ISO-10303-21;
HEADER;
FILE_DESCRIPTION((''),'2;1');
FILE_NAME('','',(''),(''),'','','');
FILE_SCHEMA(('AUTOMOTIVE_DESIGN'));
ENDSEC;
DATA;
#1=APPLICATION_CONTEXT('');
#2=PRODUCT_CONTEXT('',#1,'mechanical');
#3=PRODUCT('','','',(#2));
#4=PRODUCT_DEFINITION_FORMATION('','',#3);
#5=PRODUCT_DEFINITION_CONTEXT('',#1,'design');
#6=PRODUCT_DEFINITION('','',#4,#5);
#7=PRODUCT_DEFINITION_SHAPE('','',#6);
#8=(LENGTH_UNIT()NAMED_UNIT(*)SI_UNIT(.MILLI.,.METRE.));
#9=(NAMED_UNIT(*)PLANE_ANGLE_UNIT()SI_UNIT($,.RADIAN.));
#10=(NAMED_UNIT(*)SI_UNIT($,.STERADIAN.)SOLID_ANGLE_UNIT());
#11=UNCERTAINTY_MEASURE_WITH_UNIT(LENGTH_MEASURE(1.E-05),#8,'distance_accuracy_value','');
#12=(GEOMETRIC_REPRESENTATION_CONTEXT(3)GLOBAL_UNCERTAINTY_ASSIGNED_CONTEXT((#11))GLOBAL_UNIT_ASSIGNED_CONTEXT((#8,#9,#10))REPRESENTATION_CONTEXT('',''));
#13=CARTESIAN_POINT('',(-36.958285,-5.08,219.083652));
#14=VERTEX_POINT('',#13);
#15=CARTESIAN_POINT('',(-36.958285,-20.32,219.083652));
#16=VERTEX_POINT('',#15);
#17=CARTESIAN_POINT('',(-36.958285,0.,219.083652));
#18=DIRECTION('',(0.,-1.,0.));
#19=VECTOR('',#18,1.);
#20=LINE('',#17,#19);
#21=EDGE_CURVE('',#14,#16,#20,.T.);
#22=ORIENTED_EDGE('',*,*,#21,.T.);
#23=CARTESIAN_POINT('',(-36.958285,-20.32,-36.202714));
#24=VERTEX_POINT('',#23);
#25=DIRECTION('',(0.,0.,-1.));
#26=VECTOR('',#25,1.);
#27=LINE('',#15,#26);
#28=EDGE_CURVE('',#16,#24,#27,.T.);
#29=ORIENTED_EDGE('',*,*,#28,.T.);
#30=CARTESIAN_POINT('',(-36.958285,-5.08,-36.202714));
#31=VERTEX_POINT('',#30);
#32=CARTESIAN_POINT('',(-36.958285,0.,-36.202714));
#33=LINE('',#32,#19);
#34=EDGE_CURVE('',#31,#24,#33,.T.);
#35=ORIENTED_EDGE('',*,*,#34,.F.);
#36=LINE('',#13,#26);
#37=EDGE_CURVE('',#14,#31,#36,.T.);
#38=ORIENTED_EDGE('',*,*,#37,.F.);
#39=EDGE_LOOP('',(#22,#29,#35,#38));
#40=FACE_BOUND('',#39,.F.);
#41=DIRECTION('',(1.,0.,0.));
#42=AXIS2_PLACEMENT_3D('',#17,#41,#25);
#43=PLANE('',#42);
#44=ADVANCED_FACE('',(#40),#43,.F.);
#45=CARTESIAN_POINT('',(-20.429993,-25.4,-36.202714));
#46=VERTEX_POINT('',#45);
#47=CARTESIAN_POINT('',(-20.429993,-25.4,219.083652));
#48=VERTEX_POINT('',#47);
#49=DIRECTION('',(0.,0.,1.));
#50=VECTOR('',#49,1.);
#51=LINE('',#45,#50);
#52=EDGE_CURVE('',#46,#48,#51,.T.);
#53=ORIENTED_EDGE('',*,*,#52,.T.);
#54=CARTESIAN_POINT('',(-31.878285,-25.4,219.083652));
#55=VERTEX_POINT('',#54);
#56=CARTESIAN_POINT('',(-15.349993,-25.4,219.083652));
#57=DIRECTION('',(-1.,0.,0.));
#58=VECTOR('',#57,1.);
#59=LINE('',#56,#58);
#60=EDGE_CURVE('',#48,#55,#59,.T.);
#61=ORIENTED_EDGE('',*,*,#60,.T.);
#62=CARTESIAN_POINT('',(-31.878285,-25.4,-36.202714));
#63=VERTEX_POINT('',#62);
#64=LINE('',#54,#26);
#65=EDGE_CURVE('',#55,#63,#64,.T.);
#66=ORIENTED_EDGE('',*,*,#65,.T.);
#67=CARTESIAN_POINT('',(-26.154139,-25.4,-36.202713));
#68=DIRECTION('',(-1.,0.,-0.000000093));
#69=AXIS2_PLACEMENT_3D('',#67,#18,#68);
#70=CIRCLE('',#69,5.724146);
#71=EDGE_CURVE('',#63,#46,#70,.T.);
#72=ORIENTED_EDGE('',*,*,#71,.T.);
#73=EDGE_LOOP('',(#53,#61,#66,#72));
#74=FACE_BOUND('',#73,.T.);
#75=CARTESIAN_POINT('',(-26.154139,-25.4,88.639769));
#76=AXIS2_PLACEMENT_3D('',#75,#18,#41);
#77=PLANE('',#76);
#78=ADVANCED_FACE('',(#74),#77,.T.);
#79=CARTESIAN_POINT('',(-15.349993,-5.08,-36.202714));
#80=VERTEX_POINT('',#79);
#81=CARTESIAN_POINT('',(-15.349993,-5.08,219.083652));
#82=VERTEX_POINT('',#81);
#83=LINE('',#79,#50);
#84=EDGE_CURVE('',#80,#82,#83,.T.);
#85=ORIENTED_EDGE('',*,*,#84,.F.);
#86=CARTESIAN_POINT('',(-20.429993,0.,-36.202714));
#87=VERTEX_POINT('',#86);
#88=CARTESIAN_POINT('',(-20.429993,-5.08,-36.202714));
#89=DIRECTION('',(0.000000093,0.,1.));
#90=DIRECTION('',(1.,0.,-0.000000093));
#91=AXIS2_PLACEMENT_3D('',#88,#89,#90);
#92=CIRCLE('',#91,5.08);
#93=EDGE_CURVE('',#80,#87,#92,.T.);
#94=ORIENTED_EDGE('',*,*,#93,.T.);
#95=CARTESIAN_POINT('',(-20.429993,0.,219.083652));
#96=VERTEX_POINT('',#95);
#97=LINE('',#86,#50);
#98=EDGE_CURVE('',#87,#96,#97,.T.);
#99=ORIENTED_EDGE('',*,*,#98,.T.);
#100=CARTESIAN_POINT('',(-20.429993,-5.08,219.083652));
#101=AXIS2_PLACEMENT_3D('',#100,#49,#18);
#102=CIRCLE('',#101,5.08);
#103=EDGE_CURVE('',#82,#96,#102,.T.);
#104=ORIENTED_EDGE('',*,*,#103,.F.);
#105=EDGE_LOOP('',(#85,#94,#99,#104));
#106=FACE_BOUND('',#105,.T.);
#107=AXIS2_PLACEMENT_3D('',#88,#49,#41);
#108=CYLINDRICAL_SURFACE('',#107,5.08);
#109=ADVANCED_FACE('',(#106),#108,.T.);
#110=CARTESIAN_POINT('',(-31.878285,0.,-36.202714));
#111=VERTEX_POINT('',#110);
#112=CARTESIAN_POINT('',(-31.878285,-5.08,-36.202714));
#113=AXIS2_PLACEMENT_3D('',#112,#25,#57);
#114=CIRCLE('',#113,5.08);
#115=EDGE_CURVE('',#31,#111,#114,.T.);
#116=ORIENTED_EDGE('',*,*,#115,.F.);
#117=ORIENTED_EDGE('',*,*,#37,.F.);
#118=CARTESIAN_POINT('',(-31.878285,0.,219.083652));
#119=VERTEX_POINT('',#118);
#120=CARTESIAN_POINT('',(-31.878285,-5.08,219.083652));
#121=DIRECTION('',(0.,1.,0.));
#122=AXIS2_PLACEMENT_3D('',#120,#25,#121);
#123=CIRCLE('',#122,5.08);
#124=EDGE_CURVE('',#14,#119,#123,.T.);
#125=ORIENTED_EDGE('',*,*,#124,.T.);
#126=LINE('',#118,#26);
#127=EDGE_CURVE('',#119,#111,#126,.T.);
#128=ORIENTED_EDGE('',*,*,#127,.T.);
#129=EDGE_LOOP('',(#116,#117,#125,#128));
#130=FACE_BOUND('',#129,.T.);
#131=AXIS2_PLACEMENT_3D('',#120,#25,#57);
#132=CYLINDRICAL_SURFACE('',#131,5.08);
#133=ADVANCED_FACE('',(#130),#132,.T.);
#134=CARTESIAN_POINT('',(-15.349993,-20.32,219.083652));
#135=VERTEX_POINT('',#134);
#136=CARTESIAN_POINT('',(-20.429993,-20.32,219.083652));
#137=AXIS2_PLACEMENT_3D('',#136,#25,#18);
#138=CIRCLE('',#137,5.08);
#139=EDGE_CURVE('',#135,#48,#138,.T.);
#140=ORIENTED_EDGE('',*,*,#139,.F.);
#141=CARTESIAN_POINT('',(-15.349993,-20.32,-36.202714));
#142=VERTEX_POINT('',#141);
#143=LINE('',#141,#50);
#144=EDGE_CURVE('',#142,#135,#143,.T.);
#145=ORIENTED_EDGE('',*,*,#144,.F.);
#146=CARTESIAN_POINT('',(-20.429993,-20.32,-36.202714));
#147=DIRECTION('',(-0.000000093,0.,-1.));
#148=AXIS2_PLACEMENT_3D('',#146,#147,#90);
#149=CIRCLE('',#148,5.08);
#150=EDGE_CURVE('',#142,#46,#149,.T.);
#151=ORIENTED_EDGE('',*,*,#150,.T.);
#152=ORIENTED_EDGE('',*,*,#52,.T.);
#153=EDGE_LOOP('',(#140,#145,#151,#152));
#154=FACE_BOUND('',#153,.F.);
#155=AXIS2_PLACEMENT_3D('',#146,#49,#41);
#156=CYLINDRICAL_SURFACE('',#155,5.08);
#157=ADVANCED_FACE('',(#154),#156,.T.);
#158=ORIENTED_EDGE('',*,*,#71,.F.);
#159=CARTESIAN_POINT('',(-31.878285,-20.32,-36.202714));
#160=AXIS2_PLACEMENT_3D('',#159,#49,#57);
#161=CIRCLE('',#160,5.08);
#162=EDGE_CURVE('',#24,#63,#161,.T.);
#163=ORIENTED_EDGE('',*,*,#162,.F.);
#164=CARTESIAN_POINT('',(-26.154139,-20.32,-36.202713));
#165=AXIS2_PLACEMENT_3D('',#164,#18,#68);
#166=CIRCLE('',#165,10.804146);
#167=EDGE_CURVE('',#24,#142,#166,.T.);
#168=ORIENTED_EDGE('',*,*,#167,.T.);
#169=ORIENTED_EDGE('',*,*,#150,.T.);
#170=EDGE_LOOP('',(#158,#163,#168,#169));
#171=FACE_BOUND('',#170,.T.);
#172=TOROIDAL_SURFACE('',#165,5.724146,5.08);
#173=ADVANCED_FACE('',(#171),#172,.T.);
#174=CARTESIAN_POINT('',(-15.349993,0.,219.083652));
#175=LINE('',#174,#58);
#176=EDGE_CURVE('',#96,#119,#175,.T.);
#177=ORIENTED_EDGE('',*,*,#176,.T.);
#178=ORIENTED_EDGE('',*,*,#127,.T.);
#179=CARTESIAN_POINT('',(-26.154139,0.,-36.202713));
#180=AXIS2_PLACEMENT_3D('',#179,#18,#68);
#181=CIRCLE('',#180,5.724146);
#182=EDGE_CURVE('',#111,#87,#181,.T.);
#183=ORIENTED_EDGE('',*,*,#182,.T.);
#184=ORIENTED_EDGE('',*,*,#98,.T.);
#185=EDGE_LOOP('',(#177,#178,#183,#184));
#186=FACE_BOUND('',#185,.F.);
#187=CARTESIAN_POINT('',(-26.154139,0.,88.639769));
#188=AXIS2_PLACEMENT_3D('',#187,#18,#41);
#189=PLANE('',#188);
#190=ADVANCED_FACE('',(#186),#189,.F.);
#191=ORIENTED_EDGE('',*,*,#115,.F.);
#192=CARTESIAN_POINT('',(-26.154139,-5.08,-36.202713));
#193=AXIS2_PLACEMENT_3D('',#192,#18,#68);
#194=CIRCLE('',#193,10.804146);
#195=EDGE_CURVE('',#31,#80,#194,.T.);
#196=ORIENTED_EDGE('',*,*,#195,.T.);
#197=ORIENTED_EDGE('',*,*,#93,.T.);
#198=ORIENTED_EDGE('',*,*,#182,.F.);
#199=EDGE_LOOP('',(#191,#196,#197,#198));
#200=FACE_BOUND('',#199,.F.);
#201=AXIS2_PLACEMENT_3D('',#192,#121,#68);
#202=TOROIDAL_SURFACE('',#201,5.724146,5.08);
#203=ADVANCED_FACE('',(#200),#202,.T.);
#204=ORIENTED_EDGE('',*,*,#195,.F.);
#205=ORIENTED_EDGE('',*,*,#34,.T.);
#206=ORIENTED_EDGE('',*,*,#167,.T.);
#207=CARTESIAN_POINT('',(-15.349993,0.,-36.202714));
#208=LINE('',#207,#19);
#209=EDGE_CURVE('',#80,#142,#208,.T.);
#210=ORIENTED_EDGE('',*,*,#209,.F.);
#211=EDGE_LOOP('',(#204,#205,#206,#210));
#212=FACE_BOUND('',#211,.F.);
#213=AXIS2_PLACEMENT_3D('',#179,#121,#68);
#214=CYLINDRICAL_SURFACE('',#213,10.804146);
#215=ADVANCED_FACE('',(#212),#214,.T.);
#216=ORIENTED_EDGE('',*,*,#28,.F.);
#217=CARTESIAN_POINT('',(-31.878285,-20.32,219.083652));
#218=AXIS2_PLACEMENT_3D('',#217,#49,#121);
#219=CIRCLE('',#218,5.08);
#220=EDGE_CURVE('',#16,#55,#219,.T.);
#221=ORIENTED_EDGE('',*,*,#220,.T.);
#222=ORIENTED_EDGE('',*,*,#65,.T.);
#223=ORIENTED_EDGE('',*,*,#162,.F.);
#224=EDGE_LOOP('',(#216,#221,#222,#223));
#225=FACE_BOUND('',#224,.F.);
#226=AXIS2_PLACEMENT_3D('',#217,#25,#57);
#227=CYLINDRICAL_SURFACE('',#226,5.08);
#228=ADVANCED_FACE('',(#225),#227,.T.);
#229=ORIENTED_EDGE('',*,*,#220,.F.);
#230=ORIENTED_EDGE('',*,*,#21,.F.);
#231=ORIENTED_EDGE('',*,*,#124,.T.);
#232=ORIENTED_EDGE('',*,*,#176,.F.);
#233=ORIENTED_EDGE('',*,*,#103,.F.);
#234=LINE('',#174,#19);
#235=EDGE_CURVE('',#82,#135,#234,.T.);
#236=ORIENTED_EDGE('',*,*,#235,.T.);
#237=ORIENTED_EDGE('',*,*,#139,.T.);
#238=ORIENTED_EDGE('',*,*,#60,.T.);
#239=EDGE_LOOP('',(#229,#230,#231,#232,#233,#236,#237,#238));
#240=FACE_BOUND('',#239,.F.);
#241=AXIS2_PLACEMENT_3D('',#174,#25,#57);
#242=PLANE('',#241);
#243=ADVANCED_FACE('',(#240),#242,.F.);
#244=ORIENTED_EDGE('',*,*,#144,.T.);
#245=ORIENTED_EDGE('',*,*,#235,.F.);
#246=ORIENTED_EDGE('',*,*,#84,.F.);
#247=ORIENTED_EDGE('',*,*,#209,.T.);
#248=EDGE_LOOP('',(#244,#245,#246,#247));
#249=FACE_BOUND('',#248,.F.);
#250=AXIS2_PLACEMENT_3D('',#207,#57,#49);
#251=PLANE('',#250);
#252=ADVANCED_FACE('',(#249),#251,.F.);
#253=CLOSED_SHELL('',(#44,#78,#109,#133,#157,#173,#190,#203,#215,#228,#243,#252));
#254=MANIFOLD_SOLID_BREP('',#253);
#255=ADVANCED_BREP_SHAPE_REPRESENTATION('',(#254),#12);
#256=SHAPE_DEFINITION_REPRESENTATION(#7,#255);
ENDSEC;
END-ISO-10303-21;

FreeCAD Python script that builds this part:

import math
import FreeCAD as App
import Part
import Sketcher
Q = App.Units.Quantity


def edges_at(feature, points):
    """Names of the edges that pass closest to the given points."""
    edges = feature.Shape.Edges
    near = lambda p: min(range(len(edges)), key=lambda i: edges[i].distToShape(Part.Vertex(*p))[0])
    return sorted({f"Edge{near(p) + 1}" for p in points})

doc = App.newDocument("Part")
body = doc.addObject("PartDesign::Body", "Body")

sketch1 = body.newObject("Sketcher::SketchObject", "Sketch")
sketch1.AttachmentSupport = (doc.getObject("XZ_Plane"), [""])
sketch1.MapMode = "FlatFace"
sketch1.addGeometry([
    Part.LineSegment(App.Vector(-36.958285, 219.083652, 0), App.Vector(-36.958285, -36.202714, 0)),
    Part.ArcOfCircle(Part.Circle(App.Vector(-26.154139, -36.202713, 0), App.Vector(0, 0, 1), 10.804146), math.radians(-179.999995), math.radians(-0.000005)),
    Part.LineSegment(App.Vector(-15.349993, -36.202714, 0), App.Vector(-15.349993, 219.083652, 0)),
    Part.LineSegment(App.Vector(-15.349993, 219.083652, 0), App.Vector(-36.958285, 219.083652, 0)),
], False)
sketch1.addConstraint([
    Sketcher.Constraint("Tangent", 0, 2, 1, 1),
    Sketcher.Constraint("Tangent", 1, 2, 2, 1),
    Sketcher.Constraint("Coincident", 2, 2, 3, 1),
    Sketcher.Constraint("Coincident", 3, 2, 0, 1),
    Sketcher.Constraint("Vertical", 0),
    Sketcher.Constraint("Vertical", 2),
    Sketcher.Constraint("Horizontal", 3),
    Sketcher.Constraint("Radius", 1, Q("10.804146 mm")),
    Sketcher.Constraint("DistanceY", 0, 2, 0, 1, Q("255.286366 mm")),
    Sketcher.Constraint("DistanceX", 1, 3, -1, 1, Q("26.154139 mm")),
    Sketcher.Constraint("DistanceY", -1, 1, 2, 2, Q("219.083652 mm")),
])
pad1 = body.newObject("PartDesign::Pad", "Pad")
pad1.Profile = sketch1
pad1.Length = Q("1 in")
doc.recompute()

fillet = body.newObject("PartDesign::Fillet", "Fillet")
fillet.Base = (pad1, edges_at(pad1, [
    (-36.958, -12.7, -36.203),
    (-15.35, -12.7, -36.203),
    (-26.154, 0, -47.007),
    (-26.154, -25.4, -47.007),
]))
fillet.Radius = Q("0.2 in")

doc.recompute()
